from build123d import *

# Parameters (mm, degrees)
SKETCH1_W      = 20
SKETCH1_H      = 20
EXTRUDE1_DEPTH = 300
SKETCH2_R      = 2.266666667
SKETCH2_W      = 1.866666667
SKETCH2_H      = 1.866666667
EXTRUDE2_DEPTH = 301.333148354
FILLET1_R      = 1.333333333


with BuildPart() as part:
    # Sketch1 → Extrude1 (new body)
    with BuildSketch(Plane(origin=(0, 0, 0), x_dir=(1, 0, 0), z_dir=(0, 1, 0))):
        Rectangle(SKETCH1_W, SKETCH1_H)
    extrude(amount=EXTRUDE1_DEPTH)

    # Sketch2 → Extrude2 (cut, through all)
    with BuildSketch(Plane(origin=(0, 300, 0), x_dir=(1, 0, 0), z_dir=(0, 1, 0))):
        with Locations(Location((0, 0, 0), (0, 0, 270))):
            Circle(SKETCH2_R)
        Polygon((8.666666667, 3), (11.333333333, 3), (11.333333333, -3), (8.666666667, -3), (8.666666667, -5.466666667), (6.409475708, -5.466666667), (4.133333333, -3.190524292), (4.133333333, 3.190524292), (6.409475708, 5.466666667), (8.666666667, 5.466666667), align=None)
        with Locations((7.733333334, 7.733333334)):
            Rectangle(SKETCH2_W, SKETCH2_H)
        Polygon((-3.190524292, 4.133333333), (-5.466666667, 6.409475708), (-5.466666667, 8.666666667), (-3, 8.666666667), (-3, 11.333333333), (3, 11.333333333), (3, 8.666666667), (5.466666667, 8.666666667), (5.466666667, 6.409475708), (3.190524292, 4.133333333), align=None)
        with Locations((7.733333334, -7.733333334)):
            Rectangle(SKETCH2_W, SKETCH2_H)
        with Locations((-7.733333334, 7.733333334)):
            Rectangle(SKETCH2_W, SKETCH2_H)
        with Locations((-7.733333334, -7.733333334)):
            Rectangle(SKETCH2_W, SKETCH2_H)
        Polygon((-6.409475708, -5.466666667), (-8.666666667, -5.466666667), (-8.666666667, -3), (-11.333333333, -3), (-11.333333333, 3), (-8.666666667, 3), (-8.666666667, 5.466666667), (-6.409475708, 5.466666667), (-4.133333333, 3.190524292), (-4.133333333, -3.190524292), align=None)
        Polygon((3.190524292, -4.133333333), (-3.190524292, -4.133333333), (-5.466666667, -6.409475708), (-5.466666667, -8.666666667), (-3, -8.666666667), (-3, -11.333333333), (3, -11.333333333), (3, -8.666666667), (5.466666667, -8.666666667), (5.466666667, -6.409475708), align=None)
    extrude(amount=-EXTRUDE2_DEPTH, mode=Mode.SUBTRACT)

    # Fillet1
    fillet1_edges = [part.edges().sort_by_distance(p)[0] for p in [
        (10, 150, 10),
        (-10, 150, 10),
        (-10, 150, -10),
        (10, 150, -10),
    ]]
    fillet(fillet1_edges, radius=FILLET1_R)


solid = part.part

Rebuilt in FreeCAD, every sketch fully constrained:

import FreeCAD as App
import Part
import Sketcher


def edges_at(feature, points):
    """Names of the edges that pass closest to the given points."""
    edges = feature.Shape.Edges
    near = lambda p: min(range(len(edges)), key=lambda i: edges[i].distToShape(Part.Vertex(*p))[0])
    return sorted({f"Edge{near(p) + 1}" for p in points})


def add_polygon(sketch, points):
    """Adds a closed chain of lines whose ends are joined by coincident constraints."""
    first, n = sketch.GeometryCount, len(points)
    for a, b in zip(points, points[1:] + points[:1]):
        sketch.addGeometry(Part.LineSegment(App.Vector(*a, 0), App.Vector(*b, 0)), False)
    for i in range(n):
        sketch.addConstraint(Sketcher.Constraint("Coincident", first + i, 2, first + (i + 1) % n, 1))

doc = App.newDocument("Part")
body = doc.addObject("PartDesign::Body", "Body")

# Sketch on XZ plane
sketch1 = body.newObject("Sketcher::SketchObject", "Sketch")
sketch1.AttachmentSupport = (doc.getObject("XZ_Plane"), [""])
sketch1.MapMode = "FlatFace"
add_polygon(sketch1, [(-10, -10), (-10, 10), (10, 10), (10, -10)])  # lines 0-3
sketch1.addConstraint([
    Sketcher.Constraint("Vertical", 0),
    Sketcher.Constraint("Horizontal", 1),
    Sketcher.Constraint("Vertical", 2),
    Sketcher.Constraint("Horizontal", 3),
    Sketcher.Constraint("Symmetric", 0, 2, 2, 2, -1, 1),
    Sketcher.Constraint("Equal", 3, 0),
    Sketcher.Constraint("DistanceX", 1, 1, 1, 2, 20.0),
])
pad1 = body.newObject("PartDesign::Pad", "Pad")
pad1.Profile = sketch1
pad1.Length = 300
pad1.Reversed = True

# Sketch on XZ plane
sketch2 = body.newObject("Sketcher::SketchObject", "Sketch001")
sketch2.AttachmentSupport = (doc.getObject("XZ_Plane"), [""])
sketch2.MapMode = "FlatFace"
sketch2.AttachmentOffset = App.Placement(App.Vector(0, 0, -300), App.Rotation())
sketch2.addGeometry(Part.Circle(App.Vector(0, 0, 0), App.Vector(0, 0, 1), 2.3), False)  # 0
add_polygon(sketch2, [(11.3, -3), (8.7, -3), (8.7, -5.5), (6.4, -5.5), (4.1, -3.2), (4.1, 3.2), (6.4, 5.5), (8.7, 5.5), (8.7, 3), (11.3, 3)])  # lines 1-10
add_polygon(sketch2, [(6.8, -8.7), (6.8, -6.8), (8.7, -6.8), (8.7, -8.7)])  # lines 11-14
add_polygon(sketch2, [(-5.5, -6.4), (-3.2, -4.1), (3.2, -4.1), (5.5, -6.4), (5.5, -8.7), (3, -8.7), (3, -11.3), (-3, -11.3), (-3, -8.7), (-5.5, -8.7)])  # lines 15-24
add_polygon(sketch2, [(6.8, 6.8), (6.8, 8.7), (8.7, 8.7), (8.7, 6.8)])  # lines 25-28
add_polygon(sketch2, [(-8.7, -8.7), (-8.7, -6.8), (-6.8, -6.8), (-6.8, -8.7)])  # lines 29-32
add_polygon(sketch2, [(-8.7, 6.8), (-8.7, 8.7), (-6.8, 8.7), (-6.8, 6.8)])  # lines 33-36
add_polygon(sketch2, [(-8.7, 5.5), (-6.4, 5.5), (-4.1, 3.2), (-4.1, -3.2), (-6.4, -5.5), (-8.7, -5.5), (-8.7, -3), (-11.3, -3), (-11.3, 3), (-8.7, 3)])  # lines 37-46
add_polygon(sketch2, [(3.2, 4.1), (-3.2, 4.1), (-5.5, 6.4), (-5.5, 8.7), (-3, 8.7), (-3, 11.3), (3, 11.3), (3, 8.7), (5.5, 8.7), (5.5, 6.4)])  # lines 47-56
sketch2.addConstraint([
    Sketcher.Constraint("Horizontal", 1),
    Sketcher.Constraint("Vertical", 2),
    Sketcher.Constraint("Horizontal", 3),
    Sketcher.Constraint("Vertical", 5),
    Sketcher.Constraint("Horizontal", 7),
    Sketcher.Constraint("Vertical", 8),
    Sketcher.Constraint("Horizontal", 9),
    Sketcher.Constraint("Vertical", 10),
    Sketcher.Constraint("Vertical", 11),
    Sketcher.Constraint("Horizontal", 12),
    Sketcher.Constraint("Vertical", 13),
    Sketcher.Constraint("Horizontal", 14),
    Sketcher.Constraint("Horizontal", 16),
    Sketcher.Constraint("Vertical", 18),
    Sketcher.Constraint("Horizontal", 19),
    Sketcher.Constraint("Vertical", 20),
    Sketcher.Constraint("Horizontal", 21),
    Sketcher.Constraint("Vertical", 22),
    Sketcher.Constraint("Horizontal", 23),
    Sketcher.Constraint("Vertical", 24),
    Sketcher.Constraint("Vertical", 25),
    Sketcher.Constraint("Horizontal", 26),
    Sketcher.Constraint("Vertical", 27),
    Sketcher.Constraint("Horizontal", 28),
    Sketcher.Constraint("Vertical", 29),
    Sketcher.Constraint("Horizontal", 30),
    Sketcher.Constraint("Vertical", 31),
    Sketcher.Constraint("Horizontal", 32),
    Sketcher.Constraint("Vertical", 33),
    Sketcher.Constraint("Horizontal", 34),
    Sketcher.Constraint("Vertical", 35),
    Sketcher.Constraint("Horizontal", 36),
    Sketcher.Constraint("Horizontal", 37),
    Sketcher.Constraint("Vertical", 39),
    Sketcher.Constraint("Horizontal", 41),
    Sketcher.Constraint("Vertical", 42),
    Sketcher.Constraint("Horizontal", 43),
    Sketcher.Constraint("Vertical", 44),
    Sketcher.Constraint("Horizontal", 45),
    Sketcher.Constraint("Vertical", 46),
    Sketcher.Constraint("Horizontal", 47),
    Sketcher.Constraint("Vertical", 49),
    Sketcher.Constraint("Horizontal", 50),
    Sketcher.Constraint("Vertical", 51),
    Sketcher.Constraint("Horizontal", 52),
    Sketcher.Constraint("Vertical", 53),
    Sketcher.Constraint("Horizontal", 54),
    Sketcher.Constraint("Vertical", 55),
    Sketcher.Constraint("Coincident", 0, 3, -1, 1),
    Sketcher.Constraint("Symmetric", 27, 2, 29, 2, -1, 1),
    Sketcher.Constraint("Symmetric", 25, 2, 31, 2, -1, 1),
    Sketcher.Constraint("Symmetric", 13, 2, 33, 2, -1, 1),
    Sketcher.Constraint("Symmetric", 11, 2, 35, 2, -1, 1),
    Sketcher.Constraint("Symmetric", 3, 2, 37, 2, -1, 1),
    Sketcher.Constraint("Symmetric", 4, 2, 38, 2, -1, 1),
    Sketcher.Constraint("Symmetric", 6, 2, 40, 2, -1, 1),
    Sketcher.Constraint("Symmetric", 8, 2, 42, 2, -1, 1),
    Sketcher.Constraint("Symmetric", 10, 2, 44, 2, -1, 1),
    Sketcher.Constraint("Symmetric", 16, 2, 47, 2, -1, 1),
    Sketcher.Constraint("Symmetric", 17, 2, 48, 2, -1, 1),
    Sketcher.Constraint("Symmetric", 19, 2, 50, 2, -1, 1),
    Sketcher.Constraint("Symmetric", 21, 2, 52, 2, -1, 1),
    Sketcher.Constraint("Symmetric", 23, 2, 54, 2, -1, 1),
    Sketcher.Constraint("Symmetric", 19, 2, 22, 2, -2),
    Sketcher.Constraint("Symmetric", 17, 2, 24, 2, -2),
    Sketcher.Constraint("Symmetric", 12, 2, 29, 2, -2),
    Sketcher.Constraint("Symmetric", 14, 2, 31, 2, -2),
    Sketcher.Constraint("Symmetric", 6, 2, 37, 2, -2),
    Sketcher.Constraint("Symmetric", 1, 2, 42, 2, -2),
    Sketcher.Constraint("Perpendicular", 4, 6),
    Sketcher.Constraint("Parallel", 6, 15),
    Sketcher.Constraint("Perpendicular", 15, 17),
    Sketcher.Constraint("Perpendicular", 38, 40),
    Sketcher.Constraint("Perpendicular", 48, 56),
    Sketcher.Constraint("Horizontal", 14, 2, 18, 2),
    Sketcher.Constraint("Horizontal", 5, 2, 38, 2),
    Sketcher.Constraint("Horizontal", 48, 2, 55, 2),
    Sketcher.Constraint("Vertical", 8, 2, 12, 2),
    Sketcher.Constraint("Vertical", 42, 2, 45, 2),
    Sketcher.Constraint("Equal", 54, 2),
    Sketcher.Constraint("Equal", 47, 5),
    Sketcher.Constraint("Equal", 52, 10),
    Sketcher.Constraint("Equal", 36, 11),
    Sketcher.Constraint("Equal", 41, 18),
    Sketcher.Constraint("Equal", 45, 20),
    Sketcher.Constraint("DistanceX", 21, 2, 21, 1, 6.0),
    Sketcher.Constraint("DistanceX", -1, 1, 11, 2, 6.8),
    Sketcher.Constraint("DistanceY", 11, 2, -1, 1, 6.8),
    Sketcher.Constraint("DistanceX", 5, 2, 9, 2, 7.2),
    Sketcher.Constraint("DistanceY", 13, 2, 2, 2, 3.2),
    Sketcher.Constraint("DistanceX", 15, 2, 3, 2, 9.6),
    Sketcher.Constraint("Diameter", 0, 4.533333),
    Sketcher.Constraint("DistanceX", 3, 2, 3, 1, 2.257191),
    Sketcher.Constraint("DistanceX", 16, 1, 16, 2, 6.381049),
])
pocket1 = body.newObject("PartDesign::Pocket", "Pocket")
pocket1.Profile = sketch2
pocket1.Type = "ThroughAll"
pocket1.Reversed = True
doc.recompute()

fillet = body.newObject("PartDesign::Fillet", "Fillet")
fillet.Base = (pocket1, edges_at(pocket1, [
    (10, 150, 10),
    (-10, 150, 10),
    (-10, 150, -10),
    (10, 150, -10),
]))
fillet.Radius = 1.333333

doc.recompute()
